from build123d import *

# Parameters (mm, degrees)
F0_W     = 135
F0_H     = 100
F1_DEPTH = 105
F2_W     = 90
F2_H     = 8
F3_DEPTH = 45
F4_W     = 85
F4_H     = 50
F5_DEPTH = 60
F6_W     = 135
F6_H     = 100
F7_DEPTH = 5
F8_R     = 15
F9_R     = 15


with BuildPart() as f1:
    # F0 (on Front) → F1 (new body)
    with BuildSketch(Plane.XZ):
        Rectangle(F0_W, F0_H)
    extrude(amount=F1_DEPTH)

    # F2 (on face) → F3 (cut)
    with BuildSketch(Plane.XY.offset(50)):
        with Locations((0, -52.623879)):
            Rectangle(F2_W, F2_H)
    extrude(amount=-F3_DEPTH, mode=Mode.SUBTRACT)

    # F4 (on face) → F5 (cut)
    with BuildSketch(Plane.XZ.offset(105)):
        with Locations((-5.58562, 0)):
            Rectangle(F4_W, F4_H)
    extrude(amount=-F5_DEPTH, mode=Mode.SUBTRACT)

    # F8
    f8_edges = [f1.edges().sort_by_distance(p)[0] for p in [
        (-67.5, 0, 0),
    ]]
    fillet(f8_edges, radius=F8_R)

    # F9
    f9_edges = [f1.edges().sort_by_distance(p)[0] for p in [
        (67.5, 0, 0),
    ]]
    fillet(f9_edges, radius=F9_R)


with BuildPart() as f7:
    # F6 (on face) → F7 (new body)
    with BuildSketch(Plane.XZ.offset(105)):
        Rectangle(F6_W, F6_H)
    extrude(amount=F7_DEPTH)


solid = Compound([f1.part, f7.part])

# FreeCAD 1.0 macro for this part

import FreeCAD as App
import Part
import Sketcher

V = App.Vector
Q = App.Units.Quantity


def edges_at(feature, points):
    """Names of the edges that pass closest to the given points."""
    edges = feature.Shape.Edges
    near = lambda p: min(range(len(edges)), key=lambda i: edges[i].distToShape(Part.Vertex(*p))[0])
    return sorted({f"Edge{near(p) + 1}" for p in points})

doc = App.newDocument("Part")
params = doc.addObject("Spreadsheet::Sheet", "Params")
for row, (alias, value) in enumerate([
    ("sketch1_width", "135 mm"),
    ("sketch1_height", "100 mm"),
    ("pad1_length", "105 mm"),
    ("sketch2_width", "90 mm"),
    ("sketch2_height", "8 mm"),
    ("pocket1_length", "45 mm"),
    ("sketch3_width", "85 mm"),
    ("sketch3_height", "50 mm"),
    ("pocket2_length", "60 mm"),
    ("fillet_radius", "15 mm"),
    ("fillet2_radius", "15 mm"),
    ("sketch4_width", "135 mm"),
    ("sketch4_height", "100 mm"),
    ("pad2_length", "5 mm"),
], start=1):
    params.set(f"A{row}", alias)
    params.set(f"B{row}", "=" + value)
    params.setAlias(f"B{row}", alias)

body = doc.addObject("PartDesign::Body", "Body")

sketch1 = body.newObject("Sketcher::SketchObject", "Sketch")
sketch1.AttachmentSupport = (doc.getObject("XZ_Plane"), [""])
sketch1.MapMode = "FlatFace"
sketch1.addGeometry([
    Part.LineSegment(V(-68, 50, 0), V(-68, -50, 0)),
    Part.LineSegment(V(-68, -50, 0), V(68, -50, 0)),
    Part.LineSegment(V(68, -50, 0), V(68, 50, 0)),
    Part.LineSegment(V(68, 50, 0), V(-68, 50, 0)),
], False)
sketch1.addConstraint([
    Sketcher.Constraint("Coincident", 0, 2, 1, 1),
    Sketcher.Constraint("Coincident", 1, 2, 2, 1),
    Sketcher.Constraint("Coincident", 2, 2, 3, 1),
    Sketcher.Constraint("Coincident", 3, 2, 0, 1),
    Sketcher.Constraint("Vertical", 0),
    Sketcher.Constraint("Horizontal", 1),
    Sketcher.Constraint("Vertical", 2),
    Sketcher.Constraint("Horizontal", 3),
    Sketcher.Constraint("Symmetric", 0, 2, 2, 2, -1, 1),
    Sketcher.Constraint("DistanceX", 1, 1, 1, 2, Q("135 mm")),
    Sketcher.Constraint("DistanceY", 0, 2, 0, 1, Q("100 mm")),
])
sketch1.setExpression("Constraints[9]", "Params.sketch1_width")
sketch1.setExpression("Constraints[10]", "Params.sketch1_height")
pad1 = body.newObject("PartDesign::Pad", "Pad")
pad1.Profile = sketch1
pad1.setExpression("Length", "Params.pad1_length")

sketch2 = body.newObject("Sketcher::SketchObject", "Sketch001")
sketch2.AttachmentSupport = (doc.getObject("XY_Plane"), [""])
sketch2.MapMode = "FlatFace"
sketch2.AttachmentOffset = App.Placement(V(0, 0, 50), App.Rotation())
sketch2.addGeometry([
    Part.LineSegment(V(-45, -49, 0), V(-45, -57, 0)),
    Part.LineSegment(V(-45, -57, 0), V(45, -57, 0)),
    Part.LineSegment(V(45, -57, 0), V(45, -49, 0)),
    Part.LineSegment(V(45, -49, 0), V(-45, -49, 0)),
], False)
sketch2.addConstraint([
    Sketcher.Constraint("Coincident", 0, 2, 1, 1),
    Sketcher.Constraint("Coincident", 1, 2, 2, 1),
    Sketcher.Constraint("Coincident", 2, 2, 3, 1),
    Sketcher.Constraint("Coincident", 3, 2, 0, 1),
    Sketcher.Constraint("Vertical", 0),
    Sketcher.Constraint("Horizontal", 1),
    Sketcher.Constraint("Vertical", 2),
    Sketcher.Constraint("Horizontal", 3),
    Sketcher.Constraint("DistanceX", 1, 1, 1, 2, Q("90 mm")),
    Sketcher.Constraint("DistanceY", 0, 2, 0, 1, Q("8 mm")),
    Sketcher.Constraint("DistanceX", 0, 2, -1, 1, Q("45 mm")),
    Sketcher.Constraint("DistanceY", 0, 2, -1, 1, Q("56.623879 mm")),
])
sketch2.setExpression("Constraints[8]", "Params.sketch2_width")
sketch2.setExpression("Constraints[9]", "Params.sketch2_height")
pocket1 = body.newObject("PartDesign::Pocket", "Pocket")
pocket1.Profile = sketch2
pocket1.setExpression("Length", "Params.pocket1_length")

sketch3 = body.newObject("Sketcher::SketchObject", "Sketch002")
sketch3.AttachmentSupport = (doc.getObject("XZ_Plane"), [""])
sketch3.MapMode = "FlatFace"
sketch3.AttachmentOffset = App.Placement(V(0, 0, 105), App.Rotation())
sketch3.addGeometry([
    Part.LineSegment(V(-48, 25, 0), V(-48, -25, 0)),
    Part.LineSegment(V(-48, -25, 0), V(37, -25, 0)),
    Part.LineSegment(V(37, -25, 0), V(37, 25, 0)),
    Part.LineSegment(V(37, 25, 0), V(-48, 25, 0)),
], False)
sketch3.addConstraint([
    Sketcher.Constraint("Coincident", 0, 2, 1, 1),
    Sketcher.Constraint("Coincident", 1, 2, 2, 1),
    Sketcher.Constraint("Coincident", 2, 2, 3, 1),
    Sketcher.Constraint("Coincident", 3, 2, 0, 1),
    Sketcher.Constraint("Vertical", 0),
    Sketcher.Constraint("Horizontal", 1),
    Sketcher.Constraint("Vertical", 2),
    Sketcher.Constraint("Horizontal", 3),
    Sketcher.Constraint("DistanceX", 1, 1, 1, 2, Q("85 mm")),
    Sketcher.Constraint("DistanceY", 0, 2, 0, 1, Q("50 mm")),
    Sketcher.Constraint("DistanceY", 0, 2, -1, 1, Q("25 mm")),
    Sketcher.Constraint("DistanceX", 0, 2, -1, 1, Q("48.08562 mm")),
])
sketch3.setExpression("Constraints[8]", "Params.sketch3_width")
sketch3.setExpression("Constraints[9]", "Params.sketch3_height")
pocket2 = body.newObject("PartDesign::Pocket", "Pocket001")
pocket2.Profile = sketch3
pocket2.setExpression("Length", "Params.pocket2_length")
doc.recompute()

fillet = body.newObject("PartDesign::Fillet", "Fillet")
fillet.Base = (pocket2, edges_at(pocket2, [(-67.5, 0, 0)]))
fillet.setExpression("Radius", "Params.fillet_radius")
doc.recompute()

fillet2 = body.newObject("PartDesign::Fillet", "Fillet001")
fillet2.Base = (fillet, edges_at(fillet, [(67.5, 0, 0)]))
fillet2.setExpression("Radius", "Params.fillet2_radius")
body2 = doc.addObject("PartDesign::Body", "Body001")

sketch4 = body2.newObject("Sketcher::SketchObject", "Sketch003")
sketch4.AttachmentSupport = (doc.getObject("XZ_Plane001"), [""])
sketch4.MapMode = "FlatFace"
sketch4.AttachmentOffset = App.Placement(V(0, 0, 105), App.Rotation())
sketch4.addGeometry([
    Part.LineSegment(V(-68, 50, 0), V(-68, -50, 0)),
    Part.LineSegment(V(-68, -50, 0), V(68, -50, 0)),
    Part.LineSegment(V(68, -50, 0), V(68, 50, 0)),
    Part.LineSegment(V(68, 50, 0), V(-68, 50, 0)),
], False)
sketch4.addConstraint([
    Sketcher.Constraint("Coincident", 0, 2, 1, 1),
    Sketcher.Constraint("Coincident", 1, 2, 2, 1),
    Sketcher.Constraint("Coincident", 2, 2, 3, 1),
    Sketcher.Constraint("Coincident", 3, 2, 0, 1),
    Sketcher.Constraint("Vertical", 0),
    Sketcher.Constraint("Horizontal", 1),
    Sketcher.Constraint("Vertical", 2),
    Sketcher.Constraint("Horizontal", 3),
    Sketcher.Constraint("Symmetric", 0, 2, 2, 2, -1, 1),
    Sketcher.Constraint("DistanceX", 1, 1, 1, 2, Q("135 mm")),
    Sketcher.Constraint("DistanceY", 0, 2, 0, 1, Q("100 mm")),
])
sketch4.setExpression("Constraints[9]", "Params.sketch4_width")
sketch4.setExpression("Constraints[10]", "Params.sketch4_height")
pad2 = body2.newObject("PartDesign::Pad", "Pad001")
pad2.Profile = sketch4
pad2.setExpression("Length", "Params.pad2_length")

doc.recompute()
